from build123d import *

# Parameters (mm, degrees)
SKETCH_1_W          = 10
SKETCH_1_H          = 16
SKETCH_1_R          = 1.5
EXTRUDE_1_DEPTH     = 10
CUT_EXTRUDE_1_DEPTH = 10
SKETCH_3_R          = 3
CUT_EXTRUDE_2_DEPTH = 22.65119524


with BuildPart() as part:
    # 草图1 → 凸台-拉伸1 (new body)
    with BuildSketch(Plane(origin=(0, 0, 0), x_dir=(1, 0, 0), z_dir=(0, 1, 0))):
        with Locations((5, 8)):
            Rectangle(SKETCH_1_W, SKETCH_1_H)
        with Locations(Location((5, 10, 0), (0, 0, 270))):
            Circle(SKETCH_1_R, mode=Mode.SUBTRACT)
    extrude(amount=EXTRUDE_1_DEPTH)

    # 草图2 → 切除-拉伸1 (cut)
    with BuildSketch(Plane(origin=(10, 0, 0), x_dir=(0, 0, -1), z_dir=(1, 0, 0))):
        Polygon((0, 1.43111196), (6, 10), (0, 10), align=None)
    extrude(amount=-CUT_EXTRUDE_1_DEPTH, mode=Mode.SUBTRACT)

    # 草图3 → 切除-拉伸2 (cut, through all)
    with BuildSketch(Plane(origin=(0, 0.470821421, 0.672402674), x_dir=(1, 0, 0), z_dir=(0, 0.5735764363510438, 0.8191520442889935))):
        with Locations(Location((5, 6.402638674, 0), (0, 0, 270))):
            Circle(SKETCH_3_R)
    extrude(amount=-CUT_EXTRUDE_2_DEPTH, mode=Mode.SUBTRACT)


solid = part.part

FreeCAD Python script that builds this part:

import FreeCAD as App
import Part
import Sketcher
Q = App.Units.Quantity


def add_polygon(sketch, points):
    """Adds a closed chain of lines whose ends are joined by coincident constraints."""
    first, n = sketch.GeometryCount, len(points)
    for a, b in zip(points, points[1:] + points[:1]):
        sketch.addGeometry(Part.LineSegment(App.Vector(*a, 0), App.Vector(*b, 0)), False)
    for i in range(n):
        sketch.addConstraint(Sketcher.Constraint("Coincident", first + i, 2, first + (i + 1) % n, 1))

doc = App.newDocument("Part")
body = doc.addObject("PartDesign::Body", "Body")

# Sketch on XZ plane
sketch1 = doc.addObject("Sketcher::SketchObject", "Sketch")
body.addObject(sketch1)
sketch1.AttachmentSupport = (doc.XZ_Plane, [""])
sketch1.MapMode = "FlatFace"
add_polygon(sketch1, [(0, -16), (0, 0), (10, 0), (10, -16)])  # lines 0-3
sketch1.addGeometry(Part.Circle(App.Vector(5, -10, 0), App.Vector(0, 0, 1), 1.5), False)  # 4
sketch1.addConstraint(Sketcher.Constraint("Vertical", 0))
sketch1.addConstraint(Sketcher.Constraint("Horizontal", 1))
sketch1.addConstraint(Sketcher.Constraint("Vertical", 2))
sketch1.addConstraint(Sketcher.Constraint("Horizontal", 3))
sketch1.addConstraint(Sketcher.Constraint("Coincident", 0, 2, -1, 1))
sketch1.addConstraint(Sketcher.Constraint("Diameter", 4, Q("3 mm")))
sketch1.addConstraint(Sketcher.Constraint("DistanceX", 1, 1, 1, 2, Q("10 mm")))
sketch1.addConstraint(Sketcher.Constraint("DistanceY", 0, 1, 0, 2, Q("16 mm")))
sketch1.addConstraint(Sketcher.Constraint("DistanceX", -1, 1, 4, 3, Q("5 mm")))
sketch1.addConstraint(Sketcher.Constraint("DistanceY", 4, 3, -1, 1, Q("10 mm")))
pad1 = doc.addObject("PartDesign::Pad", "Pad")
body.addObject(pad1)
pad1.Profile = sketch1
pad1.Length = 10
pad1.Reversed = True

# Sketch on YZ plane
sketch2 = doc.addObject("Sketcher::SketchObject", "Sketch001")
body.addObject(sketch2)
sketch2.AttachmentSupport = (doc.YZ_Plane, [""])
sketch2.MapMode = "FlatFace"
sketch2.AttachmentOffset = App.Placement(App.Vector(0, 0, 10), App.Rotation())
add_polygon(sketch2, [(1.431112, 0), (10, -6), (10, 0)])  # lines 0-2
sketch2.addConstraint(Sketcher.Constraint("Vertical", 1))
sketch2.addConstraint(Sketcher.Constraint("Horizontal", 2))
sketch2.addConstraint(Sketcher.Constraint("PointOnObject", 1, 2, -1))
sketch2.addConstraint(Sketcher.Constraint("DistanceY", 1, 1, 1, 2, Q("6 mm")))
sketch2.addConstraint(Sketcher.Constraint("Angle", 0, Q("-35 deg")))
sketch2.addConstraint(Sketcher.Constraint("DistanceX", -1, 1, 0, 2, Q("10 mm")))
pocket1 = doc.addObject("PartDesign::Pocket", "Pocket")
body.addObject(pocket1)
pocket1.Profile = sketch2
pocket1.Length = 10

# Sketch on an angled plane
sketch3 = doc.addObject("Sketcher::SketchObject", "Sketch002")
body.addObject(sketch3)
sketch3.Placement = App.Placement(App.Vector(0, 0.470821, 0.672403), App.Rotation(App.Vector(1, 0, 0), App.Vector(0, 0.819152044, -0.573576436), App.Vector(0, 0.573576436, 0.819152044), "ZXY"))
sketch3.addGeometry(Part.Circle(App.Vector(5, 6.402639, 0), App.Vector(0, 0, 1), 3), False)
sketch3.addConstraint(Sketcher.Constraint("Diameter", 0, Q("6 mm")))
sketch3.addConstraint(Sketcher.Constraint("DistanceX", -1, 1, 0, 3, Q("5 mm")))
sketch3.addConstraint(Sketcher.Constraint("DistanceY", -1, 1, 0, 3, Q("6.402639 mm")))
pocket2 = doc.addObject("PartDesign::Pocket", "Pocket001")
body.addObject(pocket2)
pocket2.Profile = sketch3
pocket2.Type = "ThroughAll"

doc.recompute()
